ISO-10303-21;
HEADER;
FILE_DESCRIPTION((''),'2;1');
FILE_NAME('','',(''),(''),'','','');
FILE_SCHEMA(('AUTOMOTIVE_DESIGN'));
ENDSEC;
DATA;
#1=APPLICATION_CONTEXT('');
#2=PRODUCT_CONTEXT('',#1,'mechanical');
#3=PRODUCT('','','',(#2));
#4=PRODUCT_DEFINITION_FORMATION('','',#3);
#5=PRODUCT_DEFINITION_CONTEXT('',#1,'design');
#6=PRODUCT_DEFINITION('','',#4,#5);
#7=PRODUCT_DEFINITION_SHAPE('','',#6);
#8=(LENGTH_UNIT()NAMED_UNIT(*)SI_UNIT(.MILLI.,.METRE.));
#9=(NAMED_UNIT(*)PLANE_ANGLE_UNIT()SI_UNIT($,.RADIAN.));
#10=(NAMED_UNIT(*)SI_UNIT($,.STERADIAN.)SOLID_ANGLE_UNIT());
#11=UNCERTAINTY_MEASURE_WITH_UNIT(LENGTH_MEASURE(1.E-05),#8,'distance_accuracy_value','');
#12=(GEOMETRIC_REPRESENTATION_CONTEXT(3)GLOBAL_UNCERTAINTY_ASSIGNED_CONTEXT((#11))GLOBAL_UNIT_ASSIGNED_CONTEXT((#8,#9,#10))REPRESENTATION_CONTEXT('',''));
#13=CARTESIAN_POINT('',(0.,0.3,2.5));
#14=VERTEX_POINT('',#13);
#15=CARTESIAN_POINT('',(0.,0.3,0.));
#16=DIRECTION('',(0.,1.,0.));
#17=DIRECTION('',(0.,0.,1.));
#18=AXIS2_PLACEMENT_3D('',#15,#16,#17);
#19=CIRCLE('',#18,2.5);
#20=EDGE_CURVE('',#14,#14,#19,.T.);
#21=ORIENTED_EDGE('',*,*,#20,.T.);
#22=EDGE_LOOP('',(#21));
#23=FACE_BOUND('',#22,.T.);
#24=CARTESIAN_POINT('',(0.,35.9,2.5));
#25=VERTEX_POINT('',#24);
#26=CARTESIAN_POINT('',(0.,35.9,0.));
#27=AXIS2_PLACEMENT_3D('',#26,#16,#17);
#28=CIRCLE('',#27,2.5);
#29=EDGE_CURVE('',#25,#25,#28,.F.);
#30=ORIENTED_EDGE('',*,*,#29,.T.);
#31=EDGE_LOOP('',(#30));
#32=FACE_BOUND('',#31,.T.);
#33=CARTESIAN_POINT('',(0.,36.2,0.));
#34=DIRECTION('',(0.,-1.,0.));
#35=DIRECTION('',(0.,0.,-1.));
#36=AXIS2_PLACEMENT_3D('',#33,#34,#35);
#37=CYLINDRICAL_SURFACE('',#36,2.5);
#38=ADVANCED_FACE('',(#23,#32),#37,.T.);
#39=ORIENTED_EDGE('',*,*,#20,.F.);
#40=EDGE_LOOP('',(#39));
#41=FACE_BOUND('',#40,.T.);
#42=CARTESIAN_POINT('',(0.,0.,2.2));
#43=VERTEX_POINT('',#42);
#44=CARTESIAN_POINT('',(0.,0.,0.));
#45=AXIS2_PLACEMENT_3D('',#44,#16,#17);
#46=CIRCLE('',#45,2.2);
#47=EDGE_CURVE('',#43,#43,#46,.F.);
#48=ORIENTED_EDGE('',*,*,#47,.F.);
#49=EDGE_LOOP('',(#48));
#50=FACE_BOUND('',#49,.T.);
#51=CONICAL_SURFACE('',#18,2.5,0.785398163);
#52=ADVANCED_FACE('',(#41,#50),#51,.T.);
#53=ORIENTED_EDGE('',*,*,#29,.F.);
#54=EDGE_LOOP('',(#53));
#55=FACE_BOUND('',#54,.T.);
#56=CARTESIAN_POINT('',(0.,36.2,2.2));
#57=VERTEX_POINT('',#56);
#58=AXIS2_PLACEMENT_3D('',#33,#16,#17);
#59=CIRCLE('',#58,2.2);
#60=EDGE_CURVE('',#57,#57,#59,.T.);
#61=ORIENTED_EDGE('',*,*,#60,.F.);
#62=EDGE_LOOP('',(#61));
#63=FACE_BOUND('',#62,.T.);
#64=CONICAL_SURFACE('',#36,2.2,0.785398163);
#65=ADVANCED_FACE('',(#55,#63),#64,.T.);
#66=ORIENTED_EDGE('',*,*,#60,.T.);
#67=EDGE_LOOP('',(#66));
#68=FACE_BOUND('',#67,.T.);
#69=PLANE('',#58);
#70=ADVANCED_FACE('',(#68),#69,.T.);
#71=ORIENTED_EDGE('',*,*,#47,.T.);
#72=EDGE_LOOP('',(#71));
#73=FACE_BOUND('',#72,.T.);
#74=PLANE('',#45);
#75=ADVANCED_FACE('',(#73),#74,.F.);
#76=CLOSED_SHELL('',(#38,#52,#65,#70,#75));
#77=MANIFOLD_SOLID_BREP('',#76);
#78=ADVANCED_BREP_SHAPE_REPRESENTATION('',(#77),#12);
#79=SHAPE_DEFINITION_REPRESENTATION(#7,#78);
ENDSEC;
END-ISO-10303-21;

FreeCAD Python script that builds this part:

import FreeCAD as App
import Part
import Sketcher
Q = App.Units.Quantity


def edges_at(feature, points):
    """Names of the edges that pass closest to the given points."""
    edges = feature.Shape.Edges
    near = lambda p: min(range(len(edges)), key=lambda i: edges[i].distToShape(Part.Vertex(*p))[0])
    return sorted({f"Edge{near(p) + 1}" for p in points})

doc = App.newDocument("Part")
body = doc.addObject("PartDesign::Body", "Body")

# Sketch on XZ plane
sketch1 = body.newObject("Sketcher::SketchObject", "Sketch")
sketch1.AttachmentSupport = (doc.getObject("XZ_Plane"), [""])
sketch1.MapMode = "FlatFace"
sketch1.addGeometry(Part.Circle(App.Vector(0, 0, 0), App.Vector(0, 0, 1), 2.5), False)
sketch1.addConstraint(Sketcher.Constraint("Coincident", 0, 3, -1, 1))
sketch1.addConstraint(Sketcher.Constraint("Diameter", 0, Q("5 mm")))
pad1 = body.newObject("PartDesign::Pad", "Pad")
pad1.Profile = sketch1
pad1.Length = 36.2
pad1.Reversed = True
doc.recompute()

chamfer = body.newObject("PartDesign::Chamfer", "Chamfer")
chamfer.Base = (pad1, edges_at(pad1, [(-2.5, 0, 0), (-2.5, 36.2, 0)]))
chamfer.Size = 0.3

doc.recompute()
